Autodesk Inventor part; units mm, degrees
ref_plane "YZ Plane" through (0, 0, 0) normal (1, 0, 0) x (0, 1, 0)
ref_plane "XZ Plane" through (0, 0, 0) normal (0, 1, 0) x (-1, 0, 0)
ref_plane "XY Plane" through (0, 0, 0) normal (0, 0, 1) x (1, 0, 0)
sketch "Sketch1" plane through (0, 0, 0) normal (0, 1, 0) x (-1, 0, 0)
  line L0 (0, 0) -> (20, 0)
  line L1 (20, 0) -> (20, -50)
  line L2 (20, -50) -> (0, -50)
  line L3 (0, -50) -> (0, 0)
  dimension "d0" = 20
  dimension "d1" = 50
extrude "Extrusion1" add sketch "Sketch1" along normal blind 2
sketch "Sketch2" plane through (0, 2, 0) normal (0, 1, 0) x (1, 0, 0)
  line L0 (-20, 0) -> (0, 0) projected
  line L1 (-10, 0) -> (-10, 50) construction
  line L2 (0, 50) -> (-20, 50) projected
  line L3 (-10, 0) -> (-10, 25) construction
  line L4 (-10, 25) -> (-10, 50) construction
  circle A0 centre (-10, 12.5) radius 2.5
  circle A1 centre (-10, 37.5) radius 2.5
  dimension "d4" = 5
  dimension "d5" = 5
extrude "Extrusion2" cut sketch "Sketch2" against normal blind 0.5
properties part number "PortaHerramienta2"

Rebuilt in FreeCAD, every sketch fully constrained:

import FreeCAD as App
import Part
import Sketcher
from FreeCAD import Vector
Q = App.Units.Quantity

doc = App.newDocument("Part")
body = doc.addObject("PartDesign::Body", "Body")

sketch1 = body.newObject("Sketcher::SketchObject", "Sketch")
sketch1.AttachmentSupport = (doc.getObject("XZ_Plane"), [""])
sketch1.MapMode = "FlatFace"
sketch1.addGeometry(Part.LineSegment(Vector(-20, 0, 0), Vector(0, 0, 0)), False)
sketch1.addGeometry(Part.LineSegment(Vector(0, 0, 0), Vector(0, -50, 0)), False)
sketch1.addGeometry(Part.LineSegment(Vector(0, -50, 0), Vector(-20, -50, 0)), False)
sketch1.addGeometry(Part.LineSegment(Vector(-20, -50, 0), Vector(-20, 0, 0)), False)
sketch1.addConstraint(Sketcher.Constraint("Coincident", 0, 2, 1, 1))
sketch1.addConstraint(Sketcher.Constraint("Coincident", 1, 2, 2, 1))
sketch1.addConstraint(Sketcher.Constraint("Coincident", 2, 2, 3, 1))
sketch1.addConstraint(Sketcher.Constraint("Coincident", 3, 2, 0, 1))
sketch1.addConstraint(Sketcher.Constraint("Horizontal", 0))
sketch1.addConstraint(Sketcher.Constraint("Vertical", 1))
sketch1.addConstraint(Sketcher.Constraint("Horizontal", 2))
sketch1.addConstraint(Sketcher.Constraint("Vertical", 3))
sketch1.addConstraint(Sketcher.Constraint("Coincident", 0, 2, -1, 1))
sketch1.addConstraint(Sketcher.Constraint("DistanceX", 0, 1, 0, 2, Q("20 mm")))
sketch1.addConstraint(Sketcher.Constraint("DistanceY", 1, 2, 1, 1, Q("50 mm")))
pad1 = body.newObject("PartDesign::Pad", "Pad")
pad1.Profile = sketch1
pad1.Length = 2
pad1.Reversed = True

sketch2 = body.newObject("Sketcher::SketchObject", "Sketch001")
sketch2.AttachmentSupport = (doc.getObject("XZ_Plane"), [""])
sketch2.MapMode = "FlatFace"
sketch2.AttachmentOffset = App.Placement(Vector(0, 0, -2), App.Rotation())
sketch2.addGeometry(Part.Circle(Vector(-10, -12.5, 0), Vector(0, 0, 1), 2.5), False)
sketch2.addGeometry(Part.Circle(Vector(-10, -37.5, 0), Vector(0, 0, 1), 2.5), False)
sketch2.addConstraint(Sketcher.Constraint("Equal", 0, 1))
sketch2.addConstraint(Sketcher.Constraint("Vertical", 0, 3, 1, 3))
sketch2.addConstraint(Sketcher.Constraint("Diameter", 0, Q("5 mm")))
sketch2.addConstraint(Sketcher.Constraint("DistanceX", 0, 3, -1, 1, Q("10 mm")))
sketch2.addConstraint(Sketcher.Constraint("DistanceY", 1, 3, 0, 3, Q("25 mm")))
sketch2.addConstraint(Sketcher.Constraint("DistanceY", 0, 3, -1, 1, Q("12.5 mm")))
pocket1 = body.newObject("PartDesign::Pocket", "Pocket")
pocket1.Profile = sketch2
pocket1.Length = 0.5
pocket1.Reversed = True

doc.recompute()
